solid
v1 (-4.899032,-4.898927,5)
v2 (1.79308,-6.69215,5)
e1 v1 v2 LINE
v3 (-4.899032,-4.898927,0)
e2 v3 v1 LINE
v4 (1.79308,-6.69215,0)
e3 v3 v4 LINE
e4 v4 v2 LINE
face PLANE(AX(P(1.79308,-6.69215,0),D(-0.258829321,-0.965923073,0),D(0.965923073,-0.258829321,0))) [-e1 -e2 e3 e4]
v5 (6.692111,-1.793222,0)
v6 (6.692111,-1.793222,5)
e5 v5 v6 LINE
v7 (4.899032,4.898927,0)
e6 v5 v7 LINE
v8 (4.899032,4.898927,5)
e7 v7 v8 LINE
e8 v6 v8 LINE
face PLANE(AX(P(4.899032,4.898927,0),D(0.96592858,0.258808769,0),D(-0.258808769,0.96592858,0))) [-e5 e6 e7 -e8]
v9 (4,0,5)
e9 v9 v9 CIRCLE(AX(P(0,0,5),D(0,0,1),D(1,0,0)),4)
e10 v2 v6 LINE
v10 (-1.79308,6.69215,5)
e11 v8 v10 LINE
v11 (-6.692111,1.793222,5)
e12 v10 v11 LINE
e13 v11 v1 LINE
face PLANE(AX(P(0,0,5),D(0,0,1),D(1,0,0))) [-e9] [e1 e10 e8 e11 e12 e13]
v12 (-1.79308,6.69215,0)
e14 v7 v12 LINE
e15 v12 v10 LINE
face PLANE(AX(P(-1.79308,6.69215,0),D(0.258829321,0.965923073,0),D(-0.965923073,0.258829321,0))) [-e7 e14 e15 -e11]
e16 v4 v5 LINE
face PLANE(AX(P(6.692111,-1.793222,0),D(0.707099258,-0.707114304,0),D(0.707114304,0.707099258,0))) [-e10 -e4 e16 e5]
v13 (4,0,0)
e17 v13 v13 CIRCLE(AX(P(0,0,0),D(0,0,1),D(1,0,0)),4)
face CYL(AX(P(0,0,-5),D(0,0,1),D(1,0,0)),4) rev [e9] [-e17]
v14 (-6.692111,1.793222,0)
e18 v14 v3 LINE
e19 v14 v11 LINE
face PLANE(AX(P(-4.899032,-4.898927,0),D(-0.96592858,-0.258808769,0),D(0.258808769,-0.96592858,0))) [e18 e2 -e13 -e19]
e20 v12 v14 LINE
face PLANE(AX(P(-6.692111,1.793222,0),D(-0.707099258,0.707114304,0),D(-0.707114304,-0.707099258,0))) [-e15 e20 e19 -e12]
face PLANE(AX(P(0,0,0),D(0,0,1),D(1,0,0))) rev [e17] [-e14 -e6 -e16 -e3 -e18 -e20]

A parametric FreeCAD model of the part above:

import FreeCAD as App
import Part
import Sketcher


def add_polygon(sketch, points):
    """Adds a closed chain of lines whose ends are joined by coincident constraints."""
    first, n = sketch.GeometryCount, len(points)
    for a, b in zip(points, points[1:] + points[:1]):
        sketch.addGeometry(Part.LineSegment(App.Vector(*a, 0), App.Vector(*b, 0)), False)
    for i in range(n):
        sketch.addConstraint(Sketcher.Constraint("Coincident", first + i, 2, first + (i + 1) % n, 1))

doc = App.newDocument("Part")
params = doc.addObject("Spreadsheet::Sheet", "Params")
for row, (alias, value) in enumerate([
    ("sketch1_diameter", "12 mm"),
    ("sketch1_diameter2", "5 mm"),
    ("pad1_length", "5 mm"),
    ("sketch2_diameter", "8 mm"),
    ("pad2_length", "5 mm"),
    ("sketch3_diameter", "8 mm"),
    ("pocket1_length", "10 mm"),
], start=1):
    params.set(f"A{row}", alias)
    params.set(f"B{row}", "=" + value)
    params.setAlias(f"B{row}", alias)

body = doc.addObject("PartDesign::Body", "Body")

sketch1 = body.newObject("Sketcher::SketchObject", "Sketch")
sketch1.AttachmentSupport = (doc.getObject("XY_Plane"), [""])
sketch1.MapMode = "FlatFace"
sketch1.addGeometry([
    Part.Circle(App.Vector(0, 0, 0), App.Vector(0, 0, 1), 6),
    Part.Circle(App.Vector(0, 0, 0), App.Vector(0, 0, 1), 2.5),
], False)
sketch1.addConstraint([
    Sketcher.Constraint("Coincident", 0, 3, -1, 1),
    Sketcher.Constraint("Coincident", 1, 3, -1, 1),
    Sketcher.Constraint("Diameter", 0, 12.0),
    Sketcher.Constraint("Diameter", 1, 5.0),
])
sketch1.setExpression("Constraints[2]", "Params.sketch1_diameter")
sketch1.setExpression("Constraints[3]", "Params.sketch1_diameter2")
pad1 = body.newObject("PartDesign::Pad", "Pad")
pad1.Profile = sketch1
pad1.setExpression("Length", "Params.pad1_length")

sketch2 = body.newObject("Sketcher::SketchObject", "Sketch001")
sketch2.AttachmentSupport = (doc.getObject("XY_Plane"), [""])
sketch2.MapMode = "FlatFace"
sketch2.AttachmentOffset = App.Placement(App.Vector(0, 0, 5), App.Rotation())
add_polygon(sketch2, [(-1.8, 6.7), (-6.7, 1.8), (-4.9, -4.9), (1.8, -6.7), (6.7, -1.8), (4.9, 4.9)])
sketch2.addGeometry(Part.Circle(App.Vector(0, 0, 0), App.Vector(0, 0, 1), 4), False)
sketch2.addConstraint([
    Sketcher.Constraint("Coincident", 6, 3, -1, 1),
    Sketcher.Constraint("Symmetric", 0, 2, 3, 2, -1, 1),
    Sketcher.Constraint("Symmetric", 1, 2, 4, 2, -1, 1),
    Sketcher.Constraint("Symmetric", 2, 2, 5, 2, -1, 1),
    Sketcher.Constraint("Equal", 0, 1),
    Sketcher.Constraint("Equal", 1, 2),
    Sketcher.Constraint("Diameter", 6, 8.0),
    Sketcher.Constraint("DistanceX", 0, 2, -1, 1, 6.692111),
    Sketcher.Constraint("DistanceX", 1, 2, -1, 1, 4.899032),
    Sketcher.Constraint("DistanceX", -1, 1, 2, 2, 1.79308),
    Sketcher.Constraint("DistanceY", 2, 2, -1, 1, 6.69215),
])
sketch2.setExpression("Constraints[12]", "Params.sketch2_diameter")
pad2 = body.newObject("PartDesign::Pad", "Pad001")
pad2.Profile = sketch2
pad2.setExpression("Length", "Params.pad2_length")
pad2.Reversed = True

sketch3 = body.newObject("Sketcher::SketchObject", "Sketch002")
sketch3.AttachmentSupport = (doc.getObject("XY_Plane"), [""])
sketch3.MapMode = "FlatFace"
sketch3.AttachmentOffset = App.Placement(App.Vector(0, 0, 5), App.Rotation())
sketch3.addGeometry(Part.Circle(App.Vector(0, 0, 0), App.Vector(0, 0, 1), 4), False)
sketch3.addConstraint([
    Sketcher.Constraint("Coincident", 0, 3, -1, 1),
    Sketcher.Constraint("Diameter", 0, 8.0),
])
sketch3.setExpression("Constraints[1]", "Params.sketch3_diameter")
pocket1 = body.newObject("PartDesign::Pocket", "Pocket")
pocket1.Profile = sketch3
pocket1.setExpression("Length", "Params.pocket1_length")

doc.recompute()
